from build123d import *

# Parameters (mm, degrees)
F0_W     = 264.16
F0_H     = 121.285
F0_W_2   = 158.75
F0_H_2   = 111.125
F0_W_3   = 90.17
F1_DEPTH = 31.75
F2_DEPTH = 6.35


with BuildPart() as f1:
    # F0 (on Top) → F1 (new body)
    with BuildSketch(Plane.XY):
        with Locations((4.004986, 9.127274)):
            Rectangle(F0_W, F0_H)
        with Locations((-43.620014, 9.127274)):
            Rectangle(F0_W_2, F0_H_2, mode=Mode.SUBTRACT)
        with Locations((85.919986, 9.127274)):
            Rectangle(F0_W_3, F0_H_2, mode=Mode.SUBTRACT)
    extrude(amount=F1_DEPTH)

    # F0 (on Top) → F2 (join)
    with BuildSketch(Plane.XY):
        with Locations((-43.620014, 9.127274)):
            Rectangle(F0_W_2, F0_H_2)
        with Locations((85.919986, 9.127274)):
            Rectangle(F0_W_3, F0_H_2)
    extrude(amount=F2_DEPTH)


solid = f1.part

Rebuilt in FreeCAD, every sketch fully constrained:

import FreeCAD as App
import Part
import Sketcher

V = App.Vector
Q = App.Units.Quantity


def add_polygon(sketch, points):
    """Adds a closed chain of lines whose ends are joined by coincident constraints."""
    first, n = sketch.GeometryCount, len(points)
    for a, b in zip(points, points[1:] + points[:1]):
        sketch.addGeometry(Part.LineSegment(App.Vector(*a, 0), App.Vector(*b, 0)), False)
    for i in range(n):
        sketch.addConstraint(Sketcher.Constraint("Coincident", first + i, 2, first + (i + 1) % n, 1))

doc = App.newDocument("Part")
body = doc.addObject("PartDesign::Body", "Body")

# Sketch on XY plane
sketch1 = body.newObject("Sketcher::SketchObject", "Sketch")
sketch1.AttachmentSupport = (doc.getObject("XY_Plane"), [""])
sketch1.MapMode = "FlatFace"
add_polygon(sketch1, [(-128, 70), (-128, -52), (136, -52), (136, 70)])  # lines 0-3
add_polygon(sketch1, [(36, -46), (-123, -46), (-123, 65), (36, 65)])  # lines 4-7
add_polygon(sketch1, [(131, -46), (41, -46), (41, 65), (131, 65)])  # lines 8-11
sketch1.addConstraint([
    Sketcher.Constraint("Vertical", 0),
    Sketcher.Constraint("Horizontal", 1),
    Sketcher.Constraint("Vertical", 2),
    Sketcher.Constraint("Horizontal", 3),
    Sketcher.Constraint("Horizontal", 4),
    Sketcher.Constraint("Vertical", 5),
    Sketcher.Constraint("Horizontal", 6),
    Sketcher.Constraint("Vertical", 7),
    Sketcher.Constraint("Horizontal", 8),
    Sketcher.Constraint("Vertical", 9),
    Sketcher.Constraint("Horizontal", 10),
    Sketcher.Constraint("Vertical", 11),
    Sketcher.Constraint("Horizontal", 7, 2, 8, 2),
    Sketcher.Constraint("Horizontal", 6, 2, 9, 2),
    Sketcher.Constraint("DistanceX", 1, 1, 1, 2, Q("10.4 in")),
    Sketcher.Constraint("DistanceX", 4, 2, 4, 1, Q("6.25 in")),
    Sketcher.Constraint("DistanceX", 8, 2, 8, 1, Q("3.55 in")),
    Sketcher.Constraint("DistanceX", 0, 2, 4, 2, Q("0.2 in")),
    Sketcher.Constraint("DistanceY", 0, 2, 4, 2, Q("0.2 in")),
    Sketcher.Constraint("DistanceY", 5, 2, 3, 2, Q("0.2 in")),
    Sketcher.Constraint("DistanceX", 7, 2, 8, 2, Q("0.2 in")),
    Sketcher.Constraint("DistanceY", 0, 2, 0, 1, Q("4.775 in")),
    Sketcher.Constraint("DistanceX", 0, 2, -1, 1, Q("128.075014 mm")),
    Sketcher.Constraint("DistanceY", 0, 2, -1, 1, Q("51.515226 mm")),
])
pad1 = body.newObject("PartDesign::Pad", "Pad")
pad1.Profile = sketch1
pad1.Length = Q("1.25 in")

# Sketch on XY plane
sketch2 = body.newObject("Sketcher::SketchObject", "Sketch001")
sketch2.AttachmentSupport = (doc.getObject("XY_Plane"), [""])
sketch2.MapMode = "FlatFace"
add_polygon(sketch2, [(-123, 65), (-123, -46), (36, -46), (36, 65)])  # lines 0-3
add_polygon(sketch2, [(41, 65), (41, -46), (131, -46), (131, 65)])  # lines 4-7
sketch2.addConstraint([
    Sketcher.Constraint("Vertical", 0),
    Sketcher.Constraint("Horizontal", 1),
    Sketcher.Constraint("Vertical", 2),
    Sketcher.Constraint("Horizontal", 3),
    Sketcher.Constraint("Vertical", 4),
    Sketcher.Constraint("Horizontal", 5),
    Sketcher.Constraint("Vertical", 6),
    Sketcher.Constraint("Horizontal", 7),
    Sketcher.Constraint("Horizontal", 1, 2, 4, 2),
    Sketcher.Constraint("Horizontal", 3, 2, 6, 2),
    Sketcher.Constraint("DistanceX", 0, 2, 5, 2, Q("10 in")),
    Sketcher.Constraint("DistanceX", 1, 1, 1, 2, Q("6.25 in")),
    Sketcher.Constraint("DistanceX", 5, 1, 5, 2, Q("3.55 in")),
    Sketcher.Constraint("DistanceY", 0, 2, 0, 1, Q("4.375 in")),
    Sketcher.Constraint("DistanceX", 0, 2, -1, 1, Q("122.995014 mm")),
    Sketcher.Constraint("DistanceY", 0, 2, -1, 1, Q("46.435226 mm")),
])
pad2 = body.newObject("PartDesign::Pad", "Pad001")
pad2.Profile = sketch2
pad2.Length = Q("0.25 in")

doc.recompute()
